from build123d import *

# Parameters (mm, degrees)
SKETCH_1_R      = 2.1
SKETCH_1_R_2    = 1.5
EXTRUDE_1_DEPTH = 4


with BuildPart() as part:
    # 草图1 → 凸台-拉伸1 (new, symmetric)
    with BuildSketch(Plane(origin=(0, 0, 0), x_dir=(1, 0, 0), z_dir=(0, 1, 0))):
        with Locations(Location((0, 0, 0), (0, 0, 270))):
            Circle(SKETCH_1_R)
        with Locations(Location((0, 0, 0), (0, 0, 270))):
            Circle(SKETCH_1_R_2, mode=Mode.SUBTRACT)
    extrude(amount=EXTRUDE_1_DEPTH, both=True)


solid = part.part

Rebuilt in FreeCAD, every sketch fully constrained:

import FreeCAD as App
import Part
import Sketcher
from FreeCAD import Vector
Q = App.Units.Quantity

doc = App.newDocument("Part")
body = doc.addObject("PartDesign::Body", "Body")

sketch1 = body.newObject("Sketcher::SketchObject", "Sketch")
sketch1.AttachmentSupport = (doc.getObject("XZ_Plane"), [""])
sketch1.MapMode = "FlatFace"
sketch1.addGeometry([
    Part.Circle(Vector(0, 0, 0), Vector(0, 0, 1), 2.1),
    Part.Circle(Vector(0, 0, 0), Vector(0, 0, 1), 1.5),
], False)
sketch1.addConstraint([
    Sketcher.Constraint("Coincident", 0, 3, -1, 1),
    Sketcher.Constraint("Coincident", 1, 3, -1, 1),
    Sketcher.Constraint("Diameter", 1, Q("3 mm")),
    Sketcher.Constraint("Diameter", 0, Q("4.2 mm")),
])
pad1 = body.newObject("PartDesign::Pad", "Pad")
pad1.Profile = sketch1
pad1.Length = 8
pad1.Midplane = True

doc.recompute()
